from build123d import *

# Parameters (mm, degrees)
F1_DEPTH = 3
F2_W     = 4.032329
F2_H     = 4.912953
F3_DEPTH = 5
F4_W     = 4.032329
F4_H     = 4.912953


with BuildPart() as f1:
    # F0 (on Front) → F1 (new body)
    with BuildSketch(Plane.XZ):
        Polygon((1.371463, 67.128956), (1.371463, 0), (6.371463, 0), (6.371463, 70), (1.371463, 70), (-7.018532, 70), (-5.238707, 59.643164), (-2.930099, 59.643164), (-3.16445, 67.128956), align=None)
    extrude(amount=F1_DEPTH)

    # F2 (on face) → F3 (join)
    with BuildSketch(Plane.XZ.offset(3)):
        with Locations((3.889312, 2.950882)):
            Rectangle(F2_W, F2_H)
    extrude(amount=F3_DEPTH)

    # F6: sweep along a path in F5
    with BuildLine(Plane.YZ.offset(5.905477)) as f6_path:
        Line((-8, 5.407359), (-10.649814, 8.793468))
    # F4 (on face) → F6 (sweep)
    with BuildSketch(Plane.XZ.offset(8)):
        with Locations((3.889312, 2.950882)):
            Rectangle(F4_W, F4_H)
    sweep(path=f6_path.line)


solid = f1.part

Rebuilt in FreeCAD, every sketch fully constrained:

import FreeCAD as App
import Part
import Sketcher

V = App.Vector
Q = App.Units.Quantity

doc = App.newDocument("Part")
body = doc.addObject("PartDesign::Body", "Body")

sketch1 = body.newObject("Sketcher::SketchObject", "Sketch")
sketch1.AttachmentSupport = (doc.getObject("XZ_Plane"), [""])
sketch1.MapMode = "FlatFace"
sketch1.addGeometry([
    Part.LineSegment(V(1.4, 67.1, 0), V(1.4, 0, 0)),
    Part.LineSegment(V(1.4, 0, 0), V(6.4, 0, 0)),
    Part.LineSegment(V(6.4, 0, 0), V(6.4, 70, 0)),
    Part.LineSegment(V(6.4, 70, 0), V(-7, 70, 0)),
    Part.LineSegment(V(-7, 70, 0), V(-5.2, 59.6, 0)),
    Part.LineSegment(V(-5.2, 59.6, 0), V(-2.9, 59.6, 0)),
    Part.LineSegment(V(-2.9, 59.6, 0), V(-3.2, 67.1, 0)),
    Part.LineSegment(V(-3.2, 67.1, 0), V(1.4, 67.1, 0)),
], False)
sketch1.addConstraint([
    Sketcher.Constraint("Coincident", 0, 2, 1, 1),
    Sketcher.Constraint("Coincident", 1, 2, 2, 1),
    Sketcher.Constraint("Coincident", 2, 2, 3, 1),
    Sketcher.Constraint("Coincident", 3, 2, 4, 1),
    Sketcher.Constraint("Coincident", 4, 2, 5, 1),
    Sketcher.Constraint("Coincident", 5, 2, 6, 1),
    Sketcher.Constraint("Coincident", 6, 2, 7, 1),
    Sketcher.Constraint("Coincident", 7, 2, 0, 1),
    Sketcher.Constraint("Vertical", 0),
    Sketcher.Constraint("Horizontal", 1),
    Sketcher.Constraint("Vertical", 2),
    Sketcher.Constraint("Horizontal", 3),
    Sketcher.Constraint("Horizontal", 5),
    Sketcher.Constraint("Horizontal", 7),
    Sketcher.Constraint("PointOnObject", 0, 2, -1),
    Sketcher.Constraint("DistanceX", 1, 1, 1, 2, Q("5 mm")),
    Sketcher.Constraint("DistanceY", 2, 1, 2, 2, Q("70 mm")),
    Sketcher.Constraint("DistanceX", 5, 1, 5, 2, Q("2.308608 mm")),
    Sketcher.Constraint("DistanceX", 5, 2, -1, 1, Q("2.930099 mm")),
    Sketcher.Constraint("Distance", 6, Q("7.489459 mm")),
    Sketcher.Constraint("DistanceX", 3, 2, 3, 1, Q("13.389995 mm")),
    Sketcher.Constraint("DistanceX", 7, 1, 7, 2, Q("4.535913 mm")),
    Sketcher.Constraint("DistanceY", 0, 2, 0, 1, Q("67.128956 mm")),
    Sketcher.Constraint("DistanceX", 6, 2, -1, 1, Q("3.16445 mm")),
])
pad1 = body.newObject("PartDesign::Pad", "Pad")
pad1.Profile = sketch1
pad1.Length = 3

sketch2 = body.newObject("Sketcher::SketchObject", "Sketch001")
sketch2.AttachmentSupport = (doc.getObject("XZ_Plane"), [""])
sketch2.MapMode = "FlatFace"
sketch2.AttachmentOffset = App.Placement(V(0, 0, 3), App.Rotation())
sketch2.addGeometry([
    Part.LineSegment(V(1.9, 5.4, 0), V(1.9, 0.5, 0)),
    Part.LineSegment(V(1.9, 0.5, 0), V(5.9, 0.5, 0)),
    Part.LineSegment(V(5.9, 0.5, 0), V(5.9, 5.4, 0)),
    Part.LineSegment(V(5.9, 5.4, 0), V(1.9, 5.4, 0)),
], False)
sketch2.addConstraint([
    Sketcher.Constraint("Coincident", 0, 2, 1, 1),
    Sketcher.Constraint("Coincident", 1, 2, 2, 1),
    Sketcher.Constraint("Coincident", 2, 2, 3, 1),
    Sketcher.Constraint("Coincident", 3, 2, 0, 1),
    Sketcher.Constraint("Vertical", 0),
    Sketcher.Constraint("Horizontal", 1),
    Sketcher.Constraint("Vertical", 2),
    Sketcher.Constraint("Horizontal", 3),
    Sketcher.Constraint("DistanceX", 1, 1, 1, 2, Q("4.032329 mm")),
    Sketcher.Constraint("DistanceY", 0, 2, 0, 1, Q("4.912953 mm")),
    Sketcher.Constraint("DistanceY", -1, 1, 2, 2, Q("5.407358 mm")),
    Sketcher.Constraint("DistanceX", -1, 1, 0, 2, Q("1.873147 mm")),
])
pad2 = body.newObject("PartDesign::Pad", "Pad001")
pad2.Profile = sketch2
pad2.Length = 5

sketch3 = body.newObject("Sketcher::SketchObject", "Sketch002")
sketch3.AttachmentSupport = (doc.getObject("XZ_Plane"), [""])
sketch3.MapMode = "FlatFace"
sketch3.AttachmentOffset = App.Placement(V(0, 0, 8), App.Rotation())
sketch3.addGeometry([
    Part.LineSegment(V(1.9, 5.4, 0), V(1.9, 0.5, 0)),
    Part.LineSegment(V(1.9, 0.5, 0), V(5.9, 0.5, 0)),
    Part.LineSegment(V(5.9, 0.5, 0), V(5.9, 5.4, 0)),
    Part.LineSegment(V(5.9, 5.4, 0), V(1.9, 5.4, 0)),
], False)
sketch3.addConstraint([
    Sketcher.Constraint("Coincident", 0, 2, 1, 1),
    Sketcher.Constraint("Coincident", 1, 2, 2, 1),
    Sketcher.Constraint("Coincident", 2, 2, 3, 1),
    Sketcher.Constraint("Coincident", 3, 2, 0, 1),
    Sketcher.Constraint("Vertical", 0),
    Sketcher.Constraint("Horizontal", 1),
    Sketcher.Constraint("Vertical", 2),
    Sketcher.Constraint("Horizontal", 3),
    Sketcher.Constraint("DistanceX", 1, 1, 1, 2, Q("4.032329 mm")),
    Sketcher.Constraint("DistanceY", 0, 2, 0, 1, Q("4.912953 mm")),
    Sketcher.Constraint("DistanceY", -1, 1, 2, 2, Q("5.407358 mm")),
    Sketcher.Constraint("DistanceX", -1, 1, 0, 2, Q("1.873147 mm")),
])

sketch4 = body.newObject("Sketcher::SketchObject", "Sketch003")
sketch4.Placement = App.Placement(V(0, -2.33718, -1.82897), App.Rotation(V(0, 0.616281672, -0.78752581), V(1.000000001, 0, 0), V(0, -0.78752581, -0.616281672), "ZXY"))
sketch4.addGeometry(Part.LineSegment(V(-9.2, 5.9, 0), V(-13.5, 5.9, 0)), False)
sketch4.addConstraint([
    Sketcher.Constraint("Horizontal", 0),
    Sketcher.Constraint("DistanceX", 0, 2, 0, 1, Q("4.29968 mm")),
    Sketcher.Constraint("DistanceX", 0, 1, -1, 1, Q("9.188688 mm")),
    Sketcher.Constraint("DistanceY", -1, 1, 0, 1, Q("5.905477 mm")),
])
doc.recompute()

additivepipe = body.newObject("PartDesign::AdditivePipe", "AdditivePipe")
additivepipe.Profile = sketch3
additivepipe.Spine = (sketch4, ["Edge1"])

doc.recompute()
